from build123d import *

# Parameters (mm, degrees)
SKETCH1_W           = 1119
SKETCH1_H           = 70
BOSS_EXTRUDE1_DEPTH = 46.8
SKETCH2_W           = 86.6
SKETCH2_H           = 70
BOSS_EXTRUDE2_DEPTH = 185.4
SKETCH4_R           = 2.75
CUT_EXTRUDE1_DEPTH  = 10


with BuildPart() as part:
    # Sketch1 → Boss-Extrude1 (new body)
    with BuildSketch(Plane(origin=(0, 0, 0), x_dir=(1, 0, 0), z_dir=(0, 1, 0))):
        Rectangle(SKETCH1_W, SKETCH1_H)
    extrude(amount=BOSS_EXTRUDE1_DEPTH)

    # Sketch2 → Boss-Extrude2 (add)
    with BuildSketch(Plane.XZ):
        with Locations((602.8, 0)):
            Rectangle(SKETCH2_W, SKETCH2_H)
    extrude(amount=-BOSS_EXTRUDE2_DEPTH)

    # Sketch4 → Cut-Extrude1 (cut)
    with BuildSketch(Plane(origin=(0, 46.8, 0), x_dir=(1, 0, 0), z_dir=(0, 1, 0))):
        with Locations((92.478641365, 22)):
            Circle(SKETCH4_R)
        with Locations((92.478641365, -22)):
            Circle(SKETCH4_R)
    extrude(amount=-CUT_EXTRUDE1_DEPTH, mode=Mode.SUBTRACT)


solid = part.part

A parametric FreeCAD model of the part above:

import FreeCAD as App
import Part
import Sketcher

V = App.Vector
Q = App.Units.Quantity


def add_polygon(sketch, points):
    """Adds a closed chain of lines whose ends are joined by coincident constraints."""
    first, n = sketch.GeometryCount, len(points)
    for a, b in zip(points, points[1:] + points[:1]):
        sketch.addGeometry(Part.LineSegment(App.Vector(*a, 0), App.Vector(*b, 0)), False)
    for i in range(n):
        sketch.addConstraint(Sketcher.Constraint("Coincident", first + i, 2, first + (i + 1) % n, 1))

doc = App.newDocument("Part")
body = doc.addObject("PartDesign::Body", "Body")

# Sketch on XZ plane
sketch1 = body.newObject("Sketcher::SketchObject", "Sketch")
sketch1.AttachmentSupport = (doc.getObject("XZ_Plane"), [""])
sketch1.MapMode = "FlatFace"
add_polygon(sketch1, [(-560, -35), (-560, 35), (560, 35), (560, -35)])  # lines 0-3
sketch1.addConstraint(Sketcher.Constraint("Vertical", 0))
sketch1.addConstraint(Sketcher.Constraint("Horizontal", 1))
sketch1.addConstraint(Sketcher.Constraint("Vertical", 2))
sketch1.addConstraint(Sketcher.Constraint("Horizontal", 3))
sketch1.addConstraint(Sketcher.Constraint("Symmetric", 0, 2, 2, 2, -1, 1))
sketch1.addConstraint(Sketcher.Constraint("DistanceX", 1, 1, 1, 2, Q("1119 mm")))
sketch1.addConstraint(Sketcher.Constraint("DistanceY", 0, 1, 0, 2, Q("70 mm")))
pad1 = body.newObject("PartDesign::Pad", "Pad")
pad1.Profile = sketch1
pad1.Length = 46.8
pad1.Reversed = True

# Sketch on XZ plane
sketch2 = body.newObject("Sketcher::SketchObject", "Sketch001")
sketch2.AttachmentSupport = (doc.getObject("XZ_Plane"), [""])
sketch2.MapMode = "FlatFace"
add_polygon(sketch2, [(560, 35), (560, -35), (646, -35), (646, 35)])  # lines 0-3
sketch2.addConstraint(Sketcher.Constraint("Vertical", 0))
sketch2.addConstraint(Sketcher.Constraint("Horizontal", 1))
sketch2.addConstraint(Sketcher.Constraint("Vertical", 2))
sketch2.addConstraint(Sketcher.Constraint("Horizontal", 3))
sketch2.addConstraint(Sketcher.Constraint("DistanceY", 0, 2, 0, 1, Q("70 mm")))
sketch2.addConstraint(Sketcher.Constraint("DistanceX", 1, 1, 1, 2, Q("86.6 mm")))
sketch2.addConstraint(Sketcher.Constraint("DistanceY", 0, 2, -1, 1, Q("35 mm")))
sketch2.addConstraint(Sketcher.Constraint("DistanceX", -1, 1, 0, 2, Q("559.5 mm")))
pad2 = body.newObject("PartDesign::Pad", "Pad001")
pad2.Profile = sketch2
pad2.Length = 185.4
pad2.Reversed = True

# Sketch on XZ plane
sketch3 = body.newObject("Sketcher::SketchObject", "Sketch002")
sketch3.AttachmentSupport = (doc.getObject("XZ_Plane"), [""])
sketch3.MapMode = "FlatFace"
sketch3.AttachmentOffset = App.Placement(V(0, 0, -46.8), App.Rotation())
sketch3.addGeometry(Part.Circle(V(92.5, -22, 0), V(0, 0, 1), 2.8), False)
sketch3.addGeometry(Part.Circle(V(92.5, 22, 0), V(0, 0, 1), 2.8), False)
sketch3.addConstraint(Sketcher.Constraint("Equal", 0, 1))
sketch3.addConstraint(Sketcher.Constraint("Symmetric", 0, 3, 1, 3, -1))
sketch3.addConstraint(Sketcher.Constraint("Diameter", 0, Q("5.5 mm")))
sketch3.addConstraint(Sketcher.Constraint("DistanceY", 0, 3, -1, 1, Q("22 mm")))
sketch3.addConstraint(Sketcher.Constraint("DistanceX", -1, 1, 0, 3, Q("92.478641 mm")))
pocket1 = body.newObject("PartDesign::Pocket", "Pocket")
pocket1.Profile = sketch3
pocket1.Length = 10
pocket1.Reversed = True

doc.recompute()
